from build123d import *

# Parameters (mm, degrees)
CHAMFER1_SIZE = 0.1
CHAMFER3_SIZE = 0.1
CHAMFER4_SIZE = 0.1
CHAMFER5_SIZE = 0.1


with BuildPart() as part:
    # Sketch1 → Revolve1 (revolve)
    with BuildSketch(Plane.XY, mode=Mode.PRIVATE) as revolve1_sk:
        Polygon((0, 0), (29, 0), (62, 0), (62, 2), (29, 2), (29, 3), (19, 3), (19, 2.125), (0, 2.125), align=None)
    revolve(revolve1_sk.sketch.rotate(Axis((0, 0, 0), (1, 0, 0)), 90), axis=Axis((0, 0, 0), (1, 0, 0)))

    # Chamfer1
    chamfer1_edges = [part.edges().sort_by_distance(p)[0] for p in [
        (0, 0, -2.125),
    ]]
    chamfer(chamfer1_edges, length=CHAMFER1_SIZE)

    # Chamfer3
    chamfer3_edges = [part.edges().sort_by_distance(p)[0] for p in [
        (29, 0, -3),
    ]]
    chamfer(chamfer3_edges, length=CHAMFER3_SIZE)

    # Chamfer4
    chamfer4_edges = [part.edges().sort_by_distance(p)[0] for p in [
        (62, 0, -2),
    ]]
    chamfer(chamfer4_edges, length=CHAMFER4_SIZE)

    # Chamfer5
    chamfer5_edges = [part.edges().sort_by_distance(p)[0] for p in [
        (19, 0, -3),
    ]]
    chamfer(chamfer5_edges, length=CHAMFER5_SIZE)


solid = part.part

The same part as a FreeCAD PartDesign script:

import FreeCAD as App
import Part
import Sketcher
from FreeCAD import Vector
Q = App.Units.Quantity


def edges_at(feature, points):
    """Names of the edges that pass closest to the given points."""
    edges = feature.Shape.Edges
    near = lambda p: min(range(len(edges)), key=lambda i: edges[i].distToShape(Part.Vertex(*p))[0])
    return sorted({f"Edge{near(p) + 1}" for p in points})


def add_polygon(sketch, points):
    """Adds a closed chain of lines whose ends are joined by coincident constraints."""
    first, n = sketch.GeometryCount, len(points)
    for a, b in zip(points, points[1:] + points[:1]):
        sketch.addGeometry(Part.LineSegment(App.Vector(*a, 0), App.Vector(*b, 0)), False)
    for i in range(n):
        sketch.addConstraint(Sketcher.Constraint("Coincident", first + i, 2, first + (i + 1) % n, 1))

doc = App.newDocument("Part")
body = doc.addObject("PartDesign::Body", "Body")

sketch1 = body.newObject("Sketcher::SketchObject", "Sketch")
sketch1.AttachmentSupport = (doc.getObject("XY_Plane"), [""])
sketch1.MapMode = "FlatFace"
add_polygon(sketch1, [(0, 0), (62, 0), (62, 2), (29, 2), (29, 3), (19, 3), (19, 2.125), (0, 2.125)])
sketch1.addConstraint(Sketcher.Constraint("Horizontal", 0))
sketch1.addConstraint(Sketcher.Constraint("Vertical", 1))
sketch1.addConstraint(Sketcher.Constraint("Horizontal", 2))
sketch1.addConstraint(Sketcher.Constraint("Vertical", 3))
sketch1.addConstraint(Sketcher.Constraint("Horizontal", 4))
sketch1.addConstraint(Sketcher.Constraint("Vertical", 5))
sketch1.addConstraint(Sketcher.Constraint("Horizontal", 6))
sketch1.addConstraint(Sketcher.Constraint("Vertical", 7))
sketch1.addConstraint(Sketcher.Constraint("Coincident", 7, 2, -1, 1))
sketch1.addConstraint(Sketcher.Constraint("DistanceX", 0, 1, 0, 2, Q("62 mm")))
sketch1.addConstraint(Sketcher.Constraint("DistanceX", 2, 2, 2, 1, Q("33 mm")))
sketch1.addConstraint(Sketcher.Constraint("DistanceX", 4, 2, 4, 1, Q("10 mm")))
sketch1.addConstraint(Sketcher.Constraint("DistanceY", 1, 1, 1, 2, Q("2 mm")))
sketch1.addConstraint(Sketcher.Constraint("DistanceY", 3, 1, 3, 2, Q("1 mm")))
sketch1.addConstraint(Sketcher.Constraint("DistanceY", 5, 2, 5, 1, Q("0.875 mm")))
revolution = body.newObject("PartDesign::Revolution", "Revolution")
revolution.Profile = sketch1
revolution.ReferenceAxis = (sketch1, ["H_Axis"])
revolution.Angle = 360
doc.recompute()

chamfer = body.newObject("PartDesign::Chamfer", "Chamfer")
chamfer.Base = (revolution, edges_at(revolution, [(0, 0, -2.125)]))
chamfer.Size = 0.1
doc.recompute()

chamfer2 = body.newObject("PartDesign::Chamfer", "Chamfer001")
chamfer2.Base = (chamfer, edges_at(chamfer, [(29, 0, -3)]))
chamfer2.Size = 0.1
doc.recompute()

chamfer3 = body.newObject("PartDesign::Chamfer", "Chamfer002")
chamfer3.Base = (chamfer2, edges_at(chamfer2, [(62, 0, -2)]))
chamfer3.Size = 0.1
doc.recompute()

chamfer4 = body.newObject("PartDesign::Chamfer", "Chamfer003")
chamfer4.Base = (chamfer3, edges_at(chamfer3, [(19, 0, -3)]))
chamfer4.Size = 0.1

doc.recompute()
